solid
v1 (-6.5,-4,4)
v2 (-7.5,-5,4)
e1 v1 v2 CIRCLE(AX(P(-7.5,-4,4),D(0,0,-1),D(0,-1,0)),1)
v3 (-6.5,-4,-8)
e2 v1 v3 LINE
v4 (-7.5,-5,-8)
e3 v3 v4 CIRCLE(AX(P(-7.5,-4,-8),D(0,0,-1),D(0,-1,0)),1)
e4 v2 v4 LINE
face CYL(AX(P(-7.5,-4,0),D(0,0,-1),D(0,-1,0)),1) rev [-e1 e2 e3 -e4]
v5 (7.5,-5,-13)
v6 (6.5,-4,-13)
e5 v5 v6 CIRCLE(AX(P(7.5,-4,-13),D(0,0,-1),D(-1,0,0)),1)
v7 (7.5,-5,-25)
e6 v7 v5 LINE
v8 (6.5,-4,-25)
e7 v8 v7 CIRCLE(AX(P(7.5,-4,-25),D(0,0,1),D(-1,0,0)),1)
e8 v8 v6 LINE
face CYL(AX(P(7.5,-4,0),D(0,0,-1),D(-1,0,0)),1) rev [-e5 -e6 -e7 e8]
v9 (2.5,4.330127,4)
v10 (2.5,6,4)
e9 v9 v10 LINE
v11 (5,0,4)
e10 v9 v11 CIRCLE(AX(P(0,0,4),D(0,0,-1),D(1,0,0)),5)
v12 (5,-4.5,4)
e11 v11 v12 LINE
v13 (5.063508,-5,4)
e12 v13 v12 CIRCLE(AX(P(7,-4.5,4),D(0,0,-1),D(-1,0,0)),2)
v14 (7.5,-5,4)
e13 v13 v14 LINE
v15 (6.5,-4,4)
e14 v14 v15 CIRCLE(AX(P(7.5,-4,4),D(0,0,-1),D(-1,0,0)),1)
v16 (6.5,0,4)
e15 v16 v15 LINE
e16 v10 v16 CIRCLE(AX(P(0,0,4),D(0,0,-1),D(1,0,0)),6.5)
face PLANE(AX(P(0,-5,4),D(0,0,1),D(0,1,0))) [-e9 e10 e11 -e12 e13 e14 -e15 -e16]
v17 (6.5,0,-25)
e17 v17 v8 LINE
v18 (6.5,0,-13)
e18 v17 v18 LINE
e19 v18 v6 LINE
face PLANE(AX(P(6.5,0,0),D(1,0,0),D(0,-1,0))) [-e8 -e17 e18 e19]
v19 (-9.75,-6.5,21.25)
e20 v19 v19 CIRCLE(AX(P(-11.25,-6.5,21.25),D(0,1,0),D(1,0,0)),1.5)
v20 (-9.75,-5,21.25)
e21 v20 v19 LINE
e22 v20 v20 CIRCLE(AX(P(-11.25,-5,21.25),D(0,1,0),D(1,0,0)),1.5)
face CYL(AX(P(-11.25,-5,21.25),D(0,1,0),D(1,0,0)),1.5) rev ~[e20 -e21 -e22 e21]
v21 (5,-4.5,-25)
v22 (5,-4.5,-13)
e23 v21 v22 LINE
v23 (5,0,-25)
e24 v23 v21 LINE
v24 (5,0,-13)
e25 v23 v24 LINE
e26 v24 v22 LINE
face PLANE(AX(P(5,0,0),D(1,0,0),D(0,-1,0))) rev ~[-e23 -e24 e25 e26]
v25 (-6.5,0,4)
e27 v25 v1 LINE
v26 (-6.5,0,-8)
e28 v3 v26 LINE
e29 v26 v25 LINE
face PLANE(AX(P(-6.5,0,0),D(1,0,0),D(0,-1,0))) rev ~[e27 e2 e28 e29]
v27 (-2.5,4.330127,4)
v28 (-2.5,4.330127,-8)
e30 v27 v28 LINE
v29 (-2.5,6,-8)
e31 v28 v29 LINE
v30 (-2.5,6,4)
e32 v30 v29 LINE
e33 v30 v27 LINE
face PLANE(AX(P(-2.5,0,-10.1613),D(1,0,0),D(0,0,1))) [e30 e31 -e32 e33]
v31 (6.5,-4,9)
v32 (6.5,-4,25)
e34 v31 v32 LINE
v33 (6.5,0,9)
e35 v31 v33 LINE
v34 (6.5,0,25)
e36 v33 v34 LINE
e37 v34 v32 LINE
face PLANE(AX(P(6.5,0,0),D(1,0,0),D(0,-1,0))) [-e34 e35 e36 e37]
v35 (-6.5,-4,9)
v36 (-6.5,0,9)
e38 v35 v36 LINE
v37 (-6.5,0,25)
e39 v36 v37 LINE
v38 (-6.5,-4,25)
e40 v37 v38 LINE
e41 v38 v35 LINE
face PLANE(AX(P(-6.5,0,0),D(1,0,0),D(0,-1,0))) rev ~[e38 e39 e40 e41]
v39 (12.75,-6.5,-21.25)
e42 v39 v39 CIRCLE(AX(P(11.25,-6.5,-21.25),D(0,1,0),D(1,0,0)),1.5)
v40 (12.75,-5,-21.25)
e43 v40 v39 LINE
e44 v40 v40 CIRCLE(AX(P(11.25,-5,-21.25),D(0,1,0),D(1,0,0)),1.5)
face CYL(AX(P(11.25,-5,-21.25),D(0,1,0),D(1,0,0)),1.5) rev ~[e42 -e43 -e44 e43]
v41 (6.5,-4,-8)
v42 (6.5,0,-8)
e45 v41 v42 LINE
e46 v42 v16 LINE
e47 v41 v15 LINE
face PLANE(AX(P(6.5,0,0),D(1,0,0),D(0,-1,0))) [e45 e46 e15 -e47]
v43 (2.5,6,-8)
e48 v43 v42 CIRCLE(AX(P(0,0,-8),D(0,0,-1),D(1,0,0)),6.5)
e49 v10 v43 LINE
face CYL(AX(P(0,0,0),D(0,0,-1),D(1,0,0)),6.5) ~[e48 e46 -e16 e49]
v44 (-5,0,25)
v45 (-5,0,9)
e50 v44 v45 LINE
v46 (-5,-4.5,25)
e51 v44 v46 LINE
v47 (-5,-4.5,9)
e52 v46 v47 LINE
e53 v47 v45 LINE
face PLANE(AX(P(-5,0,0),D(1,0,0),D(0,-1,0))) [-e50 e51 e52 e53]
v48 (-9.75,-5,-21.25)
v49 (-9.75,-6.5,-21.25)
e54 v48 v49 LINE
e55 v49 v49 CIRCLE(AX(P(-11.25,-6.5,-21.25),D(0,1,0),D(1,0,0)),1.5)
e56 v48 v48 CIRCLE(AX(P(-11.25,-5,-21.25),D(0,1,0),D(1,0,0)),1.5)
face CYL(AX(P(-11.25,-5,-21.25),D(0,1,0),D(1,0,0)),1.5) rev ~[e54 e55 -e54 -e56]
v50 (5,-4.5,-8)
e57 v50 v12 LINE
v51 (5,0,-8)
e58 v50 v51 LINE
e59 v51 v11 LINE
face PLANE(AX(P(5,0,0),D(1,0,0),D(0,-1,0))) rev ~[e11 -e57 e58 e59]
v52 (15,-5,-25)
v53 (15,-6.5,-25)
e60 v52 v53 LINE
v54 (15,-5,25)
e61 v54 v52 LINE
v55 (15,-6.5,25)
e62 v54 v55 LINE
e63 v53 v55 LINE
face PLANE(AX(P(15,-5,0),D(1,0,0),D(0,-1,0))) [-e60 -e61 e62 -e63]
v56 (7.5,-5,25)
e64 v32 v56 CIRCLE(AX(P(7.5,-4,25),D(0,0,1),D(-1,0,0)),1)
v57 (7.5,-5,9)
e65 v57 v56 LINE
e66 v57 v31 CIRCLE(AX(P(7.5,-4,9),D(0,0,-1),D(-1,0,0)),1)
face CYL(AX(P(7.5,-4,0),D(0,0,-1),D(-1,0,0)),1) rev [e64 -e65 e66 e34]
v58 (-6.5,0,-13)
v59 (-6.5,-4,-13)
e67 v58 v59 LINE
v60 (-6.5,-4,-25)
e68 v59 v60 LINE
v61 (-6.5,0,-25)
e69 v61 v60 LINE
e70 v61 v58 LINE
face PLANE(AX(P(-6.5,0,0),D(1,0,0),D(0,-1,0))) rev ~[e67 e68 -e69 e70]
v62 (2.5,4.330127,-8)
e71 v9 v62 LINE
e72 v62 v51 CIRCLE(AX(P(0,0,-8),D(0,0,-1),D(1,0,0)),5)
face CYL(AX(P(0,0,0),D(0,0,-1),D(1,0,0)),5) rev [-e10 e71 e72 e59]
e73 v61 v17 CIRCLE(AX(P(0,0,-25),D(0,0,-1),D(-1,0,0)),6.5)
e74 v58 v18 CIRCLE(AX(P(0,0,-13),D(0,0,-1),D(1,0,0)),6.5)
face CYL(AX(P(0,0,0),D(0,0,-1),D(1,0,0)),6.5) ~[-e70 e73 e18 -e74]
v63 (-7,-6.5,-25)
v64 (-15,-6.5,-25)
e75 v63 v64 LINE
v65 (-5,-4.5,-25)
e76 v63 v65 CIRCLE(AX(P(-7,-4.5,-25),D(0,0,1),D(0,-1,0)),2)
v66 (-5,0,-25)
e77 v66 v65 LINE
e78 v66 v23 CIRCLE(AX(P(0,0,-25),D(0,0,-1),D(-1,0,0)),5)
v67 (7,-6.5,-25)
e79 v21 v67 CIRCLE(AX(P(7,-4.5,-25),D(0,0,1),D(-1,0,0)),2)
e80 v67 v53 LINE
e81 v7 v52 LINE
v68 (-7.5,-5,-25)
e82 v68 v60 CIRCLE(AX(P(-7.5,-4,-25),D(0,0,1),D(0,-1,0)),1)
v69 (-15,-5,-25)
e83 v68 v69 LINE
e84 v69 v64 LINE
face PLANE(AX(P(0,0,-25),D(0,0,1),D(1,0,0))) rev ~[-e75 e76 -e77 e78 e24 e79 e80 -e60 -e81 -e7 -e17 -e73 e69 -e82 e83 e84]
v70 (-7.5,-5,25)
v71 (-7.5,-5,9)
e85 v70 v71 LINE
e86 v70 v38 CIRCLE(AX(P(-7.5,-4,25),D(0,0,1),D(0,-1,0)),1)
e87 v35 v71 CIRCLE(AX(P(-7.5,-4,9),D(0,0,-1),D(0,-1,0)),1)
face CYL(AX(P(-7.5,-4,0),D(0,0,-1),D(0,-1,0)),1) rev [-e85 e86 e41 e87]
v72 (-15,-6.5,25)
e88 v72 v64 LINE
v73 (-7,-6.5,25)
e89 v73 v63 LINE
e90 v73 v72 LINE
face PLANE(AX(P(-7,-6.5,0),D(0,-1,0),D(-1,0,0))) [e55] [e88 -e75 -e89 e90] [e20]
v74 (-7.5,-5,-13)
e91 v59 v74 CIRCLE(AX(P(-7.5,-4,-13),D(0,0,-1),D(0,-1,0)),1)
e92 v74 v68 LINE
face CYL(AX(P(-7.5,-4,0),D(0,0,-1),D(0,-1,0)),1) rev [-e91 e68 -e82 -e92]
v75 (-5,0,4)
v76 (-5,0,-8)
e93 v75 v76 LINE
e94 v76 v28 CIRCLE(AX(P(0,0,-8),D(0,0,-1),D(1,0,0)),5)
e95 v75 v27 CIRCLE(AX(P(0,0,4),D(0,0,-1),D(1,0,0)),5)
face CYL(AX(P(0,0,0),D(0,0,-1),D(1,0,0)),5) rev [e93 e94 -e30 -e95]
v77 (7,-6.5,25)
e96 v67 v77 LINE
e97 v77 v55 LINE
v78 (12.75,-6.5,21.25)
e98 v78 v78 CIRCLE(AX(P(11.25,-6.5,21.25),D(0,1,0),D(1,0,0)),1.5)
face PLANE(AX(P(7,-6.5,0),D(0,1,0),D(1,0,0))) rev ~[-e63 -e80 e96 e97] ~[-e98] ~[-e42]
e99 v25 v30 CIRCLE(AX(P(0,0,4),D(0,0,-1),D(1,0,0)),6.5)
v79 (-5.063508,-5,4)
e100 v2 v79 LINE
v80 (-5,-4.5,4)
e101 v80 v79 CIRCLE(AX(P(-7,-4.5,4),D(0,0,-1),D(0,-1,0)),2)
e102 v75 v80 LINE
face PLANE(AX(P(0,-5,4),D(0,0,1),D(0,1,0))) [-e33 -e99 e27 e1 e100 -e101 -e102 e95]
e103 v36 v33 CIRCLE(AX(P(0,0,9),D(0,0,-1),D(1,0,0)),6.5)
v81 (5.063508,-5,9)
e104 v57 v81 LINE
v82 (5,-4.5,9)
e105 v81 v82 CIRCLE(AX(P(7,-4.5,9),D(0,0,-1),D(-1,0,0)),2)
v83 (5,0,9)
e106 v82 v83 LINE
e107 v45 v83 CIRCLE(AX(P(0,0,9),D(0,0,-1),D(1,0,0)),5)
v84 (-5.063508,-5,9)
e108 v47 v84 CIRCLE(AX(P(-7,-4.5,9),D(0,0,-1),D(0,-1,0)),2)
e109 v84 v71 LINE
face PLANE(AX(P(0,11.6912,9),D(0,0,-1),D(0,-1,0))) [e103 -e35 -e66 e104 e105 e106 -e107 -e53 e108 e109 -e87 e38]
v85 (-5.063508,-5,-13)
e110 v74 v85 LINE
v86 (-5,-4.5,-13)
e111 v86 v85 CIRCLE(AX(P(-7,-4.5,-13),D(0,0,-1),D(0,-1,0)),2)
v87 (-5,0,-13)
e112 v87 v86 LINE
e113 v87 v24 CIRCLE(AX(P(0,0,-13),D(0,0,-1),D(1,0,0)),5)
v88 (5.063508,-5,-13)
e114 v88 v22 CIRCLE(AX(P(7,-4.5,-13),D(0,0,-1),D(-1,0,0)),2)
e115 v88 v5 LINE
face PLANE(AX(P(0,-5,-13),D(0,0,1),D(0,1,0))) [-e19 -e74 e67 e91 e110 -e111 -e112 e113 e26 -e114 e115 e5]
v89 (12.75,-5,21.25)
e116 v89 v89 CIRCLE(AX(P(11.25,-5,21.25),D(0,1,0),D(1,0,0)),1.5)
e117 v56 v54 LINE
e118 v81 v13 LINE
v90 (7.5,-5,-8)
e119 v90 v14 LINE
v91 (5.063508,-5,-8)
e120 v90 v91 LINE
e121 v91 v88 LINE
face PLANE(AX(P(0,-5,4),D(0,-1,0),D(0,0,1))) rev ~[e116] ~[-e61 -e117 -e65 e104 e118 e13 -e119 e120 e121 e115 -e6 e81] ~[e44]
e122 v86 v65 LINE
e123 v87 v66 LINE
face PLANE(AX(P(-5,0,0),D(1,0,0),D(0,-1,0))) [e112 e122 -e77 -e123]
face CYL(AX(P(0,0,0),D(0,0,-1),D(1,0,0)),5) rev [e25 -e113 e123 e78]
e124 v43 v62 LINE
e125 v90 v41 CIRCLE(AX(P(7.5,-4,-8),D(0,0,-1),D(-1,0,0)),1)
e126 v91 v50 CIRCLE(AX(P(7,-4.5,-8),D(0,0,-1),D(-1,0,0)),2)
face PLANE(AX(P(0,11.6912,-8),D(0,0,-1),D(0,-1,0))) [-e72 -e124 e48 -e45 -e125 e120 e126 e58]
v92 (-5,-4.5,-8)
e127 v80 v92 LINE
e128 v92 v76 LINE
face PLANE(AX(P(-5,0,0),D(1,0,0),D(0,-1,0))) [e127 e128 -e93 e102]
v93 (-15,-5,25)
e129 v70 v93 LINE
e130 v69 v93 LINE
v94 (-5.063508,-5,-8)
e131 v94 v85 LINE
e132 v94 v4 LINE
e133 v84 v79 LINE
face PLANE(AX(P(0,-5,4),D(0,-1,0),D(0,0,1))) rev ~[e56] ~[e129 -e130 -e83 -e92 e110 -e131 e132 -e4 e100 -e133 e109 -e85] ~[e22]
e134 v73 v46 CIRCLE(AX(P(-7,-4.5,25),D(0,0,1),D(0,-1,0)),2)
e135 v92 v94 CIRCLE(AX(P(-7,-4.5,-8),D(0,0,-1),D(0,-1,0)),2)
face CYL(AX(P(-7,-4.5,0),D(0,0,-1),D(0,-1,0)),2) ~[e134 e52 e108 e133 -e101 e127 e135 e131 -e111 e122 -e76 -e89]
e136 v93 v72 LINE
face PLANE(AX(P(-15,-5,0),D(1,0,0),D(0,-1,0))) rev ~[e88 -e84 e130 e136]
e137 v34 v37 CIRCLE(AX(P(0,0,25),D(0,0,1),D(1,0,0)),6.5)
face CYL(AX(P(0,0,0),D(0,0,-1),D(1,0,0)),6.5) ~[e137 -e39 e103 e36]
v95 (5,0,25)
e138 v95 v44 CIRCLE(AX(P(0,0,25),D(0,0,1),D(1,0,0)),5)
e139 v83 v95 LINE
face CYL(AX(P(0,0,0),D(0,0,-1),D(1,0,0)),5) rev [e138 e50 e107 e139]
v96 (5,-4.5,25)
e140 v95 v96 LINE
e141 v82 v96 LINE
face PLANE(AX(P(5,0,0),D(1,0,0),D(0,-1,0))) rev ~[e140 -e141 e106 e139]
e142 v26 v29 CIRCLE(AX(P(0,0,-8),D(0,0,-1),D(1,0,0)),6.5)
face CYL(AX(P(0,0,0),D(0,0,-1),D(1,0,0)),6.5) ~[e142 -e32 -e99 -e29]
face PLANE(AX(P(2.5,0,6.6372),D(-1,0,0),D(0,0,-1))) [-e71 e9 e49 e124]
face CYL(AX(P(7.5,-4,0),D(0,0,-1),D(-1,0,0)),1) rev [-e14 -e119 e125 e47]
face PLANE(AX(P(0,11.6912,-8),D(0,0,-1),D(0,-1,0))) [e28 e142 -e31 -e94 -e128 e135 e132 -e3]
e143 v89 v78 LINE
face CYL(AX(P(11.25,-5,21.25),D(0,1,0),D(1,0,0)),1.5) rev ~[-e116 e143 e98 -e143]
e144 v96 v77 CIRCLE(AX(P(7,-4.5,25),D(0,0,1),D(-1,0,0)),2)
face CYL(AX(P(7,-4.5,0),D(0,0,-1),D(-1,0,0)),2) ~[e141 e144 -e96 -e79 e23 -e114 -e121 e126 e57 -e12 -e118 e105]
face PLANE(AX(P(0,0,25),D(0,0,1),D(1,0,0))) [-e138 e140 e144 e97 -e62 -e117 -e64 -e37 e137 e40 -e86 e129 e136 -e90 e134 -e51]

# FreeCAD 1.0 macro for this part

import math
import FreeCAD as App
import Part
import Sketcher
from FreeCAD import Vector
Q = App.Units.Quantity

doc = App.newDocument("Part")
body = doc.addObject("PartDesign::Body", "Body")

sketch1 = doc.addObject("Sketcher::SketchObject", "Sketch")
body.addObject(sketch1)
sketch1.AttachmentSupport = (doc.XY_Plane, [""])
sketch1.MapMode = "FlatFace"
sketch1.addGeometry([
    Part.ArcOfCircle(Part.Circle(Vector(0, 0, 0), Vector(0, 0, 1), 5), math.radians(0), math.radians(180)),
    Part.LineSegment(Vector(5, 0, 0), Vector(5, -4.5, 0)),
    Part.ArcOfCircle(Part.Circle(Vector(7, -4.5, 0), Vector(0, 0, 1), 2), math.radians(180), math.radians(270)),
    Part.LineSegment(Vector(7, -6.5, 0), Vector(15, -6.5, 0)),
    Part.LineSegment(Vector(15, -6.5, 0), Vector(15, -5, 0)),
    Part.LineSegment(Vector(15, -5, 0), Vector(7.5, -5, 0)),
    Part.ArcOfCircle(Part.Circle(Vector(7.5, -4, 0), Vector(0, 0, 1), 1), math.radians(180), math.radians(270)),
    Part.LineSegment(Vector(6.5, -4, 0), Vector(6.5, 0, 0)),
    Part.ArcOfCircle(Part.Circle(Vector(0, 0, 0), Vector(0, 0, 1), 6.5), math.radians(0), math.radians(180)),
    Part.LineSegment(Vector(-6.5, 0, 0), Vector(-6.5, -4, 0)),
    Part.ArcOfCircle(Part.Circle(Vector(-7.5, -4, 0), Vector(0, 0, 1), 1), math.radians(-90), math.radians(0)),
    Part.LineSegment(Vector(-7.5, -5, 0), Vector(-15, -5, 0)),
    Part.LineSegment(Vector(-15, -5, 0), Vector(-15, -6.5, 0)),
    Part.LineSegment(Vector(-15, -6.5, 0), Vector(-7, -6.5, 0)),
    Part.ArcOfCircle(Part.Circle(Vector(-7, -4.5, 0), Vector(0, 0, 1), 2), math.radians(-90), math.radians(0)),
    Part.LineSegment(Vector(-5, -4.5, 0), Vector(-5, 0, 0)),
], False)
sketch1.addConstraint([
    Sketcher.Constraint("Tangent", 0, 1, 1, 1),
    Sketcher.Constraint("Tangent", 1, 2, 2, 1),
    Sketcher.Constraint("Tangent", 2, 2, 3, 1),
    Sketcher.Constraint("Coincident", 3, 2, 4, 1),
    Sketcher.Constraint("Coincident", 4, 2, 5, 1),
    Sketcher.Constraint("Tangent", 5, 2, 6, 2),
    Sketcher.Constraint("Tangent", 6, 1, 7, 1),
    Sketcher.Constraint("Tangent", 7, 2, 8, 1),
    Sketcher.Constraint("Tangent", 8, 2, 9, 1),
    Sketcher.Constraint("Tangent", 9, 2, 10, 2),
    Sketcher.Constraint("Tangent", 10, 1, 11, 1),
    Sketcher.Constraint("Coincident", 11, 2, 12, 1),
    Sketcher.Constraint("Coincident", 12, 2, 13, 1),
    Sketcher.Constraint("Tangent", 13, 2, 14, 1),
    Sketcher.Constraint("Tangent", 14, 2, 15, 1),
    Sketcher.Constraint("Tangent", 15, 2, 0, 2),
    Sketcher.Constraint("Vertical", 1),
    Sketcher.Constraint("Horizontal", 3),
    Sketcher.Constraint("Vertical", 4),
    Sketcher.Constraint("Horizontal", 5),
    Sketcher.Constraint("Vertical", 7),
    Sketcher.Constraint("Vertical", 9),
    Sketcher.Constraint("Horizontal", 11),
    Sketcher.Constraint("Vertical", 12),
    Sketcher.Constraint("Horizontal", 13),
    Sketcher.Constraint("Vertical", 15),
    Sketcher.Constraint("Coincident", 0, 3, -1, 1),
    Sketcher.Constraint("Coincident", 8, 3, -1, 1),
    Sketcher.Constraint("Equal", 6, 10),
    Sketcher.Constraint("Equal", 2, 14),
    Sketcher.Constraint("Symmetric", 4, 2, 11, 2, -2),
    Sketcher.Constraint("Horizontal", 2, 3, 14, 3),
    Sketcher.Constraint("Radius", 0, Q("5 mm")),
    Sketcher.Constraint("Radius", 2, Q("2 mm")),
    Sketcher.Constraint("Radius", 6, Q("1 mm")),
    Sketcher.Constraint("DistanceY", 4, 1, 4, 2, Q("1.5 mm")),
    Sketcher.Constraint("DistanceX", 1, 2, 3, 2, Q("10 mm")),
    Sketcher.Constraint("Radius", 8, Q("6.5 mm")),
    Sketcher.Constraint("DistanceY", 7, 1, 7, 2, Q("4 mm")),
])
pad1 = doc.addObject("PartDesign::Pad", "Pad")
body.addObject(pad1)
pad1.Profile = sketch1
pad1.Length = 50
pad1.Midplane = True

sketch2 = doc.addObject("Sketcher::SketchObject", "Sketch001")
body.addObject(sketch2)
sketch2.AttachmentSupport = (doc.XZ_Plane, [""])
sketch2.MapMode = "FlatFace"
sketch2.AttachmentOffset = App.Placement(Vector(0, 0, 5), App.Rotation())
sketch2.addGeometry([
    Part.Circle(Vector(-11.2, 21.2, 0), Vector(0, 0, 1), 1.5),
    Part.Circle(Vector(11.2, 21.2, 0), Vector(0, 0, 1), 1.5),
    Part.Circle(Vector(-11.2, -21.2, 0), Vector(0, 0, 1), 1.5),
    Part.Circle(Vector(11.2, -21.2, 0), Vector(0, 0, 1), 1.5),
], False)
sketch2.addConstraint([
    Sketcher.Constraint("Equal", 0, 1),
    Sketcher.Constraint("Equal", 1, 2),
    Sketcher.Constraint("Equal", 2, 3),
    Sketcher.Constraint("Symmetric", 1, 3, 2, 3, -1, 1),
    Sketcher.Constraint("Symmetric", 0, 3, 3, 3, -1, 1),
    Sketcher.Constraint("Symmetric", 0, 3, 1, 3, -2),
    Sketcher.Constraint("Diameter", 0, Q("3 mm")),
    Sketcher.Constraint("DistanceX", 0, 3, 1, 3, Q("22.5 mm")),
    Sketcher.Constraint("DistanceY", 2, 3, 0, 3, Q("42.5 mm")),
])
pocket1 = doc.addObject("PartDesign::Pocket", "Pocket")
body.addObject(pocket1)
pocket1.Profile = sketch2
pocket1.Length = 1.5
pocket1.Reversed = True

sketch3 = doc.addObject("Sketcher::SketchObject", "Sketch002")
body.addObject(sketch3)
sketch3.AttachmentSupport = (doc.YZ_Plane, [""])
sketch3.MapMode = "FlatFace"
sketch3.addGeometry([
    Part.LineSegment(Vector(-5, -8, 0), Vector(-5, -13, 0)),
    Part.LineSegment(Vector(-5, -13, 0), Vector(12, -13, 0)),
    Part.LineSegment(Vector(12, -13, 0), Vector(12, -8, 0)),
    Part.LineSegment(Vector(12, -8, 0), Vector(-5, -8, 0)),
    Part.LineSegment(Vector(-5, 9, 0), Vector(-5, 4, 0)),
    Part.LineSegment(Vector(-5, 4, 0), Vector(12, 4, 0)),
    Part.LineSegment(Vector(12, 4, 0), Vector(12, 9, 0)),
    Part.LineSegment(Vector(12, 9, 0), Vector(-5, 9, 0)),
], False)
sketch3.addConstraint([
    Sketcher.Constraint("Coincident", 0, 2, 1, 1),
    Sketcher.Constraint("Coincident", 1, 2, 2, 1),
    Sketcher.Constraint("Coincident", 2, 2, 3, 1),
    Sketcher.Constraint("Coincident", 3, 2, 0, 1),
    Sketcher.Constraint("Coincident", 4, 2, 5, 1),
    Sketcher.Constraint("Coincident", 5, 2, 6, 1),
    Sketcher.Constraint("Coincident", 6, 2, 7, 1),
    Sketcher.Constraint("Coincident", 7, 2, 4, 1),
    Sketcher.Constraint("Vertical", 0),
    Sketcher.Constraint("Horizontal", 1),
    Sketcher.Constraint("Vertical", 2),
    Sketcher.Constraint("Horizontal", 3),
    Sketcher.Constraint("Vertical", 4),
    Sketcher.Constraint("Horizontal", 5),
    Sketcher.Constraint("Vertical", 6),
    Sketcher.Constraint("Horizontal", 7),
    Sketcher.Constraint("Vertical", 3, 2, 4, 2),
    Sketcher.Constraint("Vertical", 2, 2, 5, 2),
    Sketcher.Constraint("Equal", 2, 4),
    Sketcher.Constraint("DistanceY", 0, 2, 0, 1, Q("5 mm")),
    Sketcher.Constraint("DistanceX", 0, 2, -1, 1, Q("5 mm")),
    Sketcher.Constraint("DistanceY", 3, 2, 4, 2, Q("12 mm")),
    Sketcher.Constraint("DistanceY", 0, 2, -1, 1, Q("13 mm")),
    Sketcher.Constraint("DistanceX", 1, 1, 1, 2, Q("16.6912 mm")),
])
pocket2 = doc.addObject("PartDesign::Pocket", "Pocket001")
body.addObject(pocket2)
pocket2.Profile = sketch3
pocket2.Length = 50
pocket2.Midplane = True

sketch4 = doc.addObject("Sketcher::SketchObject", "Sketch003")
body.addObject(sketch4)
sketch4.AttachmentSupport = (doc.XZ_Plane, [""])
sketch4.MapMode = "FlatFace"
sketch4.addGeometry([
    Part.LineSegment(Vector(-2, -10, 0), Vector(-2, 7, 0)),
    Part.LineSegment(Vector(-2, 7, 0), Vector(2, 7, 0)),
    Part.LineSegment(Vector(2, 7, 0), Vector(2, -10, 0)),
    Part.LineSegment(Vector(2, -10, 0), Vector(-2, -10, 0)),
], False)
sketch4.addConstraint([
    Sketcher.Constraint("Coincident", 0, 2, 1, 1),
    Sketcher.Constraint("Coincident", 1, 2, 2, 1),
    Sketcher.Constraint("Coincident", 2, 2, 3, 1),
    Sketcher.Constraint("Coincident", 3, 2, 0, 1),
    Sketcher.Constraint("Vertical", 0),
    Sketcher.Constraint("Horizontal", 1),
    Sketcher.Constraint("Vertical", 2),
    Sketcher.Constraint("Horizontal", 3),
    Sketcher.Constraint("DistanceX", 1, 1, 1, 2, Q("5 mm")),
    Sketcher.Constraint("DistanceX", 0, 2, -1, 1, Q("2.5 mm")),
    Sketcher.Constraint("DistanceY", 0, 1, 0, 2, Q("16.7985 mm")),
    Sketcher.Constraint("DistanceY", -1, 1, 0, 2, Q("6.6372 mm")),
])
pocket3 = doc.addObject("PartDesign::Pocket", "Pocket002")
body.addObject(pocket3)
pocket3.Profile = sketch4
pocket3.Length = 6

doc.recompute()
